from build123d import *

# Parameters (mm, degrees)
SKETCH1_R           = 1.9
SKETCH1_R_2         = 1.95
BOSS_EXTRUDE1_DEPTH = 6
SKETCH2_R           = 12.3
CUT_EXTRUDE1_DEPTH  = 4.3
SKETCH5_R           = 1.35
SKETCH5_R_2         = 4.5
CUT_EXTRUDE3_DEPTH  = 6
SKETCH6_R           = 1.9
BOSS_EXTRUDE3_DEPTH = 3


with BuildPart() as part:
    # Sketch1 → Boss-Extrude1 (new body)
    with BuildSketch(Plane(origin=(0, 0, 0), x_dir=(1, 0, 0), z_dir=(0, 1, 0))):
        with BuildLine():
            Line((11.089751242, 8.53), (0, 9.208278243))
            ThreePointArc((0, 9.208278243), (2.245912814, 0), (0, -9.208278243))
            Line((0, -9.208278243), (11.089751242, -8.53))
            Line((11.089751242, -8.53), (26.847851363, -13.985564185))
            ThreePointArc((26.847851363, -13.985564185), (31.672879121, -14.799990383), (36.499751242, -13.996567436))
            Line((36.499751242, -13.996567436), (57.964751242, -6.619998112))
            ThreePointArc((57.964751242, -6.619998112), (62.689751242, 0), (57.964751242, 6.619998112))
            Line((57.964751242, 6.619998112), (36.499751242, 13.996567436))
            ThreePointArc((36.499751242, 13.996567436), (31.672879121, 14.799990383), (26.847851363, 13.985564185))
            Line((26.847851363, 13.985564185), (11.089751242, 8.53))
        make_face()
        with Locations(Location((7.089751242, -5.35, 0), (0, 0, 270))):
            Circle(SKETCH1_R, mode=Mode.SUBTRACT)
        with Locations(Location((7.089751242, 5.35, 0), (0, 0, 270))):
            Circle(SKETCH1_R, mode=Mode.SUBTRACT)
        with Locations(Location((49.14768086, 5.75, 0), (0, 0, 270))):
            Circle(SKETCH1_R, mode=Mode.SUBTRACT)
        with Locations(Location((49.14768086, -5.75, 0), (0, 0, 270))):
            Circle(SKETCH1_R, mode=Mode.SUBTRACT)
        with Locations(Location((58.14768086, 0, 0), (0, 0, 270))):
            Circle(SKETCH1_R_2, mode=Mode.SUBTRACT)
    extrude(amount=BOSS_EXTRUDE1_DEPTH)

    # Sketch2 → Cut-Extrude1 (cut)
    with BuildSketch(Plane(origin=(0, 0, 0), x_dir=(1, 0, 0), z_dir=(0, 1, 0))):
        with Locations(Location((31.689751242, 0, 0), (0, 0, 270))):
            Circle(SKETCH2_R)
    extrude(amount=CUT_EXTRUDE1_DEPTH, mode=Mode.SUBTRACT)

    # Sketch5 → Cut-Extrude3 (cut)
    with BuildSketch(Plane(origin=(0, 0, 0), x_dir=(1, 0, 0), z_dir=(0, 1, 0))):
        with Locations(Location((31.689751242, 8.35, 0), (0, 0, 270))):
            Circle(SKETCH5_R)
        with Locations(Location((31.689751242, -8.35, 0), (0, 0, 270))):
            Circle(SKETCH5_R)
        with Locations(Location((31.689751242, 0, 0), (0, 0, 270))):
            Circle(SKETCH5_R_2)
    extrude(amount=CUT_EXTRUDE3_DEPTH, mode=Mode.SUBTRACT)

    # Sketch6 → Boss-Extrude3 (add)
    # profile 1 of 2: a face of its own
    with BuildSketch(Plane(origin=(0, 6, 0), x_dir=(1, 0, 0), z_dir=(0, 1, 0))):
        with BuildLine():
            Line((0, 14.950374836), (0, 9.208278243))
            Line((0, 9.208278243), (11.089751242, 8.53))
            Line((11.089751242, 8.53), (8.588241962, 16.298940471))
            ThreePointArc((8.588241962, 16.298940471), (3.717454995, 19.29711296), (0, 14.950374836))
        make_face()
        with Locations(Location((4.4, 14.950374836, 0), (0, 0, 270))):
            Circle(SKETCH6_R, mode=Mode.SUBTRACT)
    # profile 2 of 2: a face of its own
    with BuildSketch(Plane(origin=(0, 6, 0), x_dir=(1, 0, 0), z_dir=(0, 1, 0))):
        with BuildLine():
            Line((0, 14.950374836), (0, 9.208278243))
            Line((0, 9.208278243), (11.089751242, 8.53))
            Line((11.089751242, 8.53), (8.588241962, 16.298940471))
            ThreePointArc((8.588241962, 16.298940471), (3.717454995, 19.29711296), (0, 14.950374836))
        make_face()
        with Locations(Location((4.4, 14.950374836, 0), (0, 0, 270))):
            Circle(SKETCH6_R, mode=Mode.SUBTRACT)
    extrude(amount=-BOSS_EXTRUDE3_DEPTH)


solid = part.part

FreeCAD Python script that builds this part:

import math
import FreeCAD as App
import Part
import Sketcher

V = App.Vector
Q = App.Units.Quantity

doc = App.newDocument("Part")
body = doc.addObject("PartDesign::Body", "Body")

# Sketch on XZ plane
sketch1 = body.newObject("Sketcher::SketchObject", "Sketch")
sketch1.AttachmentSupport = (doc.getObject("XZ_Plane"), [""])
sketch1.MapMode = "FlatFace"
sketch1.addGeometry([
    Part.LineSegment(V(11.089751, -8.53, 0), V(0, -9.208278, 0)),  # 0
    Part.ArcOfCircle(Part.Circle(V(-17.754087, 0, 0), V(0, 0, 1), 20), math.radians(-27.41382), math.radians(27.41382)),  # 1
    Part.LineSegment(V(0, 9.208278, 0), V(11.089751, 8.53, 0)),  # 2
    Part.LineSegment(V(11.089751, 8.53, 0), V(26.847851, 13.985564, 0)),  # 3
    Part.ArcOfCircle(Part.Circle(V(31.689751, 0, 0), V(0, 0, 1), 14.8), math.radians(71.034425), math.radians(109.09621)),  # 4
    Part.LineSegment(V(36.499751, 13.996567, 0), V(57.964751, 6.619998, 0)),  # 5
    Part.ArcOfCircle(Part.Circle(V(55.689751, 0, 0), V(0, 0, 1), 7), math.radians(-71.034425), math.radians(71.034425)),  # 6
    Part.LineSegment(V(57.964751, -6.619998, 0), V(36.499751, -13.996567, 0)),  # 7
    Part.ArcOfCircle(Part.Circle(V(31.689751, 0, 0), V(0, 0, 1), 14.8), math.radians(-109.09621), math.radians(-71.034425)),  # 8
    Part.LineSegment(V(26.847851, -13.985564, 0), V(11.089751, -8.53, 0)),  # 9
    Part.Circle(V(7.089751, 5.35, 0), V(0, 0, 1), 1.9),  # 10
    Part.Circle(V(49.147681, 5.75, 0), V(0, 0, 1), 1.9),  # 11
    Part.Circle(V(7.089751, -5.35, 0), V(0, 0, 1), 1.9),  # 12
    Part.Circle(V(58.147681, 0, 0), V(0, 0, 1), 1.95),  # 13
    Part.Circle(V(49.147681, -5.75, 0), V(0, 0, 1), 1.9),  # 14
], False)
sketch1.addConstraint([
    Sketcher.Constraint("Coincident", 0, 2, 1, 1),
    Sketcher.Constraint("Coincident", 1, 2, 2, 1),
    Sketcher.Constraint("Coincident", 2, 2, 3, 1),
    Sketcher.Constraint("Tangent", 3, 2, 4, 2),
    Sketcher.Constraint("Tangent", 4, 1, 5, 1),
    Sketcher.Constraint("Tangent", 5, 2, 6, 2),
    Sketcher.Constraint("Tangent", 6, 1, 7, 1),
    Sketcher.Constraint("Tangent", 7, 2, 8, 2),
    Sketcher.Constraint("Tangent", 8, 1, 9, 1),
    Sketcher.Constraint("Coincident", 9, 2, 0, 1),
    Sketcher.Constraint("Coincident", 8, 3, 4, 3),
    Sketcher.Constraint("Equal", 4, 8),
    Sketcher.Constraint("Equal", 10, 11),
    Sketcher.Constraint("Equal", 11, 12),
    Sketcher.Constraint("Equal", 12, 14),
    Sketcher.Constraint("Symmetric", 0, 2, 1, 2, -1, 1),
    Sketcher.Constraint("Symmetric", 10, 3, 12, 3, -1),
    Sketcher.Constraint("Symmetric", 11, 3, 14, 3, -1),
    Sketcher.Constraint("Symmetric", 5, 2, 6, 1, -1),
    Sketcher.Constraint("Symmetric", 2, 2, 9, 2, -1),
    Sketcher.Constraint("PointOnObject", 1, 3, -1),
    Sketcher.Constraint("PointOnObject", 13, 3, -1),
    Sketcher.Constraint("Radius", 1, 20.0),
    Sketcher.Constraint("Radius", 6, 7.0),
    Sketcher.Constraint("Diameter", 10, 3.8),
    Sketcher.Constraint("Diameter", 13, 3.9),
    Sketcher.Constraint("Radius", 4, 14.8),
    Sketcher.Constraint("Angle", 0, Q("-176.5 deg")),
    Sketcher.Constraint("DistanceX", 4, 3, 6, 3, 24.0),
    Sketcher.Constraint("DistanceX", 11, 3, 13, 3, 9.0),
    Sketcher.Constraint("DistanceX", 10, 3, 2, 2, 4.0),
    Sketcher.Constraint("DistanceX", 10, 3, 4, 3, 24.6),
    Sketcher.Constraint("DistanceY", 10, 3, 11, 3, 0.4),
    Sketcher.Constraint("DistanceY", 12, 3, 10, 3, 10.7),
    Sketcher.Constraint("DistanceY", -1, 1, 2, 2, 8.53),
    Sketcher.Constraint("DistanceX", -1, 1, 4, 3, 31.689751),
    Sketcher.Constraint("DistanceX", -1, 1, 11, 3, 49.147681),
])
pad1 = body.newObject("PartDesign::Pad", "Pad")
pad1.Profile = sketch1
pad1.Length = 6
pad1.Reversed = True

# Sketch on XZ plane
sketch2 = body.newObject("Sketcher::SketchObject", "Sketch001")
sketch2.AttachmentSupport = (doc.getObject("XZ_Plane"), [""])
sketch2.MapMode = "FlatFace"
sketch2.addGeometry(Part.Circle(V(31.689751, 0, 0), V(0, 0, 1), 12.3), False)
sketch2.addConstraint([
    Sketcher.Constraint("PointOnObject", 0, 3, -1),
    Sketcher.Constraint("Diameter", 0, 24.6),
    Sketcher.Constraint("DistanceX", -1, 1, 0, 3, 31.689751),
])
pocket1 = body.newObject("PartDesign::Pocket", "Pocket")
pocket1.Profile = sketch2
pocket1.Length = 4.3

# Sketch on XZ plane
sketch3 = body.newObject("Sketcher::SketchObject", "Sketch002")
sketch3.AttachmentSupport = (doc.getObject("XZ_Plane"), [""])
sketch3.MapMode = "FlatFace"
sketch3.addGeometry([
    Part.Circle(V(31.689751, -8.35, 0), V(0, 0, 1), 1.35),
    Part.Circle(V(31.689751, 8.35, 0), V(0, 0, 1), 1.35),
    Part.Circle(V(31.689751, 0, 0), V(0, 0, 1), 4.5),
], False)
sketch3.addConstraint([
    Sketcher.Constraint("Equal", 0, 1),
    Sketcher.Constraint("Symmetric", 0, 3, 1, 3, -1),
    Sketcher.Constraint("PointOnObject", 2, 3, -1),
    Sketcher.Constraint("Vertical", 1, 3, 2, 3),
    Sketcher.Constraint("Diameter", 2, 9.0),
    Sketcher.Constraint("Diameter", 0, 2.7),
    Sketcher.Constraint("DistanceY", 0, 3, 1, 3, 16.7),
    Sketcher.Constraint("DistanceX", -1, 1, 0, 3, 31.689751),
])
pocket2 = body.newObject("PartDesign::Pocket", "Pocket001")
pocket2.Profile = sketch3
pocket2.Length = 6

# Sketch on XZ plane
sketch4 = body.newObject("Sketcher::SketchObject", "Sketch003")
sketch4.AttachmentSupport = (doc.getObject("XZ_Plane"), [""])
sketch4.MapMode = "FlatFace"
sketch4.AttachmentOffset = App.Placement(V(0, 0, -6), App.Rotation())
sketch4.addGeometry([
    Part.LineSegment(V(0, -14.950375, 0), V(0, -9.208278, 0)),  # 0
    Part.LineSegment(V(0, -9.208278, 0), V(11.089751, -8.53, 0)),  # 1
    Part.LineSegment(V(11.089751, -8.53, 0), V(8.588242, -16.29894, 0)),  # 2
    Part.ArcOfCircle(Part.Circle(V(4.4, -14.950375, 0), V(0, 0, 1), 4.4), math.radians(180), math.radians(342.15204)),  # 3
    Part.Circle(V(4.4, -14.950375, 0), V(0, 0, 1), 1.9),  # 4
], False)
sketch4.addConstraint([
    Sketcher.Constraint("Coincident", 0, 2, 1, 1),
    Sketcher.Constraint("Coincident", 1, 2, 2, 1),
    Sketcher.Constraint("Tangent", 2, 2, 3, 2),
    Sketcher.Constraint("Tangent", 3, 1, 0, 1),
    Sketcher.Constraint("Vertical", 0),
    Sketcher.Constraint("Coincident", 4, 3, 3, 3),
    Sketcher.Constraint("PointOnObject", 0, 2, -2),
    Sketcher.Constraint("Diameter", 4, 3.8),
    Sketcher.Constraint("Radius", 3, 4.4),
    Sketcher.Constraint("Angle", 1, Q("3.5 deg")),
    Sketcher.Constraint("DistanceY", 1, 2, -1, 1, 8.53),
    Sketcher.Constraint("Distance", 2, 8.161739),
    Sketcher.Constraint("DistanceY", 0, 1, 0, 2, 5.742097),
])
pad2 = body.newObject("PartDesign::Pad", "Pad001")
pad2.Profile = sketch4
pad2.Length = 3

doc.recompute()
